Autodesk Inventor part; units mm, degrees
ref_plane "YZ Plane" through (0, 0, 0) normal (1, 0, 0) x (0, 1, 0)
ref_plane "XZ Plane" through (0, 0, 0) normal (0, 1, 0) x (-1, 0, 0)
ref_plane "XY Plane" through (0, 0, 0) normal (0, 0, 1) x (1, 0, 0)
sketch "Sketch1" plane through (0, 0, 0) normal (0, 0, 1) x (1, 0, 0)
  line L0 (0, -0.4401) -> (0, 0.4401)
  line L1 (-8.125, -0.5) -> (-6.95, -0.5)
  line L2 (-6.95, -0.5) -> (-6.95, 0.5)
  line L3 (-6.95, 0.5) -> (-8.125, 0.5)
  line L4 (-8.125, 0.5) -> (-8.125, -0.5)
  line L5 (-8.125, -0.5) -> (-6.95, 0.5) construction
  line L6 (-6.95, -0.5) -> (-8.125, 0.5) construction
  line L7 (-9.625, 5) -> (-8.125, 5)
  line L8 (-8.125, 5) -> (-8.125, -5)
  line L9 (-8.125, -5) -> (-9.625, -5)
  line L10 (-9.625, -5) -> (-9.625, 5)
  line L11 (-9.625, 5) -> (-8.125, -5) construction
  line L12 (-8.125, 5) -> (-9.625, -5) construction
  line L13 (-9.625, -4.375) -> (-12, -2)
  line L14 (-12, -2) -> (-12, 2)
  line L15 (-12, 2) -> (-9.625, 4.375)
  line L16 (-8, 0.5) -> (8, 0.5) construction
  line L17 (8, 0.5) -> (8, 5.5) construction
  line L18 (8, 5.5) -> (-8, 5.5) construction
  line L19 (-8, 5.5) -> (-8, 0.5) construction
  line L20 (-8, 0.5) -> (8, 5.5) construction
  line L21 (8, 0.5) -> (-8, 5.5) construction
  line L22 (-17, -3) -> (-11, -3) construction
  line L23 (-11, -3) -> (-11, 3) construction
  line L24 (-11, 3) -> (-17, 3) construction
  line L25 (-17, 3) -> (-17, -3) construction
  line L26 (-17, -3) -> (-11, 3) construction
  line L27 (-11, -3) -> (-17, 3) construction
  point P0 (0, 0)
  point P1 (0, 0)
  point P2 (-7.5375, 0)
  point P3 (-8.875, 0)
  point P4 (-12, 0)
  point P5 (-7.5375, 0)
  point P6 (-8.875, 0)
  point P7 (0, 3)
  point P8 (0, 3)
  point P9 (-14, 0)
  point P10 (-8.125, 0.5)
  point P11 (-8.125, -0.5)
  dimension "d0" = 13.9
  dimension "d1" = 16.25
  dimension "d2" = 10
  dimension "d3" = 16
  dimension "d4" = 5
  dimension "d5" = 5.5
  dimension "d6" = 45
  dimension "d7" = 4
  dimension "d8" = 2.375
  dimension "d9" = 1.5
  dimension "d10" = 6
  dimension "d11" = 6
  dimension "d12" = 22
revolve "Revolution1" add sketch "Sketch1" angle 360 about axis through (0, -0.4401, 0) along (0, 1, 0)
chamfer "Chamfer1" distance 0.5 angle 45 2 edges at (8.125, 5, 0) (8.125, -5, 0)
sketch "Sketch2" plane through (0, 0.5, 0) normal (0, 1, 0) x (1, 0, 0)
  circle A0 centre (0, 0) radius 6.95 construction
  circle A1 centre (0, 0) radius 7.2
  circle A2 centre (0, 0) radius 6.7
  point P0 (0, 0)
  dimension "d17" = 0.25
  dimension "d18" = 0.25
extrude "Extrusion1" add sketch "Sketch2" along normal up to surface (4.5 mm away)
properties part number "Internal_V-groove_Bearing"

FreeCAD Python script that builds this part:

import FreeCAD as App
import Part
import Sketcher

V = App.Vector


def edges_at(feature, points):
    """Names of the edges that pass closest to the given points."""
    edges = feature.Shape.Edges
    near = lambda p: min(range(len(edges)), key=lambda i: edges[i].distToShape(Part.Vertex(*p))[0])
    return sorted({f"Edge{near(p) + 1}" for p in points})


def add_polygon(sketch, points):
    """Adds a closed chain of lines whose ends are joined by coincident constraints."""
    first, n = sketch.GeometryCount, len(points)
    for a, b in zip(points, points[1:] + points[:1]):
        sketch.addGeometry(Part.LineSegment(App.Vector(*a, 0), App.Vector(*b, 0)), False)
    for i in range(n):
        sketch.addConstraint(Sketcher.Constraint("Coincident", first + i, 2, first + (i + 1) % n, 1))

doc = App.newDocument("Part")
body = doc.addObject("PartDesign::Body", "Body")

# Sketch on XY plane
sketch1 = doc.addObject("Sketcher::SketchObject", "Sketch")
body.addObject(sketch1)
sketch1.AttachmentSupport = (doc.XY_Plane, [""])
sketch1.MapMode = "FlatFace"
add_polygon(sketch1, [(-7, 0.5), (-8.1, 0.5), (-8.1, 5), (-9.6, 5), (-9.6, 4.4), (-12, 2), (-12, -2), (-9.6, -4.4), (-9.6, -5), (-8.1, -5), (-8.1, -0.5), (-7, -0.5)])  # lines 0-11
sketch1.addConstraint([
    Sketcher.Constraint("Horizontal", 0),
    Sketcher.Constraint("Vertical", 1),
    Sketcher.Constraint("Horizontal", 2),
    Sketcher.Constraint("Vertical", 3),
    Sketcher.Constraint("Vertical", 5),
    Sketcher.Constraint("Vertical", 7),
    Sketcher.Constraint("Horizontal", 8),
    Sketcher.Constraint("Vertical", 9),
    Sketcher.Constraint("Horizontal", 10),
    Sketcher.Constraint("Vertical", 11),
    Sketcher.Constraint("Symmetric", 3, 2, 6, 2, -1),
    Sketcher.Constraint("Symmetric", 1, 2, 8, 2, -1),
    Sketcher.Constraint("Perpendicular", 4, 6),
    Sketcher.Constraint("Equal", 1, 9),
    Sketcher.Constraint("Equal", 4, 6),
    Sketcher.Constraint("DistanceY", 5, 2, 5, 1, 4.0),
    Sketcher.Constraint("DistanceX", 2, 2, 2, 1, 1.5),
    Sketcher.Constraint("DistanceY", -1, 1, 1, 2, 5.0),
    Sketcher.Constraint("DistanceY", 0, 2, 4, 2, 1.5),
    Sketcher.Constraint("DistanceX", 4, 2, -1, 1, 12.0),
    Sketcher.Constraint("DistanceX", 4, 2, 3, 2, 2.375),
    Sketcher.Constraint("DistanceX", 0, 2, 0, 1, 1.175),
])
revolution = doc.addObject("PartDesign::Revolution", "Revolution")
body.addObject(revolution)
revolution.Profile = sketch1
revolution.ReferenceAxis = (sketch1, ["V_Axis"])
revolution.Angle = 360
doc.recompute()

chamfer = doc.addObject("PartDesign::Chamfer", "Chamfer")
body.addObject(chamfer)
chamfer.Base = (revolution, edges_at(revolution, [(8.125, 5, 0), (8.125, -5, 0)]))
chamfer.Size = 0.5

# Sketch on XZ plane
sketch2 = doc.addObject("Sketcher::SketchObject", "Sketch001")
body.addObject(sketch2)
sketch2.AttachmentSupport = (doc.XZ_Plane, [""])
sketch2.MapMode = "FlatFace"
sketch2.AttachmentOffset = App.Placement(V(0, 0, -0.5), App.Rotation())
sketch2.addGeometry([
    Part.Circle(V(0, 0, 0), V(0, 0, 1), 7),
    Part.Circle(V(0, 0, 0), V(0, 0, 1), 7),
], False)
sketch2.addConstraint([
    Sketcher.Constraint("Coincident", 0, 3, -1, 1),
    Sketcher.Constraint("Coincident", 1, 3, -1, 1),
    Sketcher.Constraint("Diameter", 0, 14.4),
    Sketcher.Constraint("Diameter", 1, 13.4),
])
pad1 = doc.addObject("PartDesign::Pad", "Pad")
body.addObject(pad1)
pad1.Profile = sketch2
pad1.Length = 4.5
pad1.Reversed = True

doc.recompute()
